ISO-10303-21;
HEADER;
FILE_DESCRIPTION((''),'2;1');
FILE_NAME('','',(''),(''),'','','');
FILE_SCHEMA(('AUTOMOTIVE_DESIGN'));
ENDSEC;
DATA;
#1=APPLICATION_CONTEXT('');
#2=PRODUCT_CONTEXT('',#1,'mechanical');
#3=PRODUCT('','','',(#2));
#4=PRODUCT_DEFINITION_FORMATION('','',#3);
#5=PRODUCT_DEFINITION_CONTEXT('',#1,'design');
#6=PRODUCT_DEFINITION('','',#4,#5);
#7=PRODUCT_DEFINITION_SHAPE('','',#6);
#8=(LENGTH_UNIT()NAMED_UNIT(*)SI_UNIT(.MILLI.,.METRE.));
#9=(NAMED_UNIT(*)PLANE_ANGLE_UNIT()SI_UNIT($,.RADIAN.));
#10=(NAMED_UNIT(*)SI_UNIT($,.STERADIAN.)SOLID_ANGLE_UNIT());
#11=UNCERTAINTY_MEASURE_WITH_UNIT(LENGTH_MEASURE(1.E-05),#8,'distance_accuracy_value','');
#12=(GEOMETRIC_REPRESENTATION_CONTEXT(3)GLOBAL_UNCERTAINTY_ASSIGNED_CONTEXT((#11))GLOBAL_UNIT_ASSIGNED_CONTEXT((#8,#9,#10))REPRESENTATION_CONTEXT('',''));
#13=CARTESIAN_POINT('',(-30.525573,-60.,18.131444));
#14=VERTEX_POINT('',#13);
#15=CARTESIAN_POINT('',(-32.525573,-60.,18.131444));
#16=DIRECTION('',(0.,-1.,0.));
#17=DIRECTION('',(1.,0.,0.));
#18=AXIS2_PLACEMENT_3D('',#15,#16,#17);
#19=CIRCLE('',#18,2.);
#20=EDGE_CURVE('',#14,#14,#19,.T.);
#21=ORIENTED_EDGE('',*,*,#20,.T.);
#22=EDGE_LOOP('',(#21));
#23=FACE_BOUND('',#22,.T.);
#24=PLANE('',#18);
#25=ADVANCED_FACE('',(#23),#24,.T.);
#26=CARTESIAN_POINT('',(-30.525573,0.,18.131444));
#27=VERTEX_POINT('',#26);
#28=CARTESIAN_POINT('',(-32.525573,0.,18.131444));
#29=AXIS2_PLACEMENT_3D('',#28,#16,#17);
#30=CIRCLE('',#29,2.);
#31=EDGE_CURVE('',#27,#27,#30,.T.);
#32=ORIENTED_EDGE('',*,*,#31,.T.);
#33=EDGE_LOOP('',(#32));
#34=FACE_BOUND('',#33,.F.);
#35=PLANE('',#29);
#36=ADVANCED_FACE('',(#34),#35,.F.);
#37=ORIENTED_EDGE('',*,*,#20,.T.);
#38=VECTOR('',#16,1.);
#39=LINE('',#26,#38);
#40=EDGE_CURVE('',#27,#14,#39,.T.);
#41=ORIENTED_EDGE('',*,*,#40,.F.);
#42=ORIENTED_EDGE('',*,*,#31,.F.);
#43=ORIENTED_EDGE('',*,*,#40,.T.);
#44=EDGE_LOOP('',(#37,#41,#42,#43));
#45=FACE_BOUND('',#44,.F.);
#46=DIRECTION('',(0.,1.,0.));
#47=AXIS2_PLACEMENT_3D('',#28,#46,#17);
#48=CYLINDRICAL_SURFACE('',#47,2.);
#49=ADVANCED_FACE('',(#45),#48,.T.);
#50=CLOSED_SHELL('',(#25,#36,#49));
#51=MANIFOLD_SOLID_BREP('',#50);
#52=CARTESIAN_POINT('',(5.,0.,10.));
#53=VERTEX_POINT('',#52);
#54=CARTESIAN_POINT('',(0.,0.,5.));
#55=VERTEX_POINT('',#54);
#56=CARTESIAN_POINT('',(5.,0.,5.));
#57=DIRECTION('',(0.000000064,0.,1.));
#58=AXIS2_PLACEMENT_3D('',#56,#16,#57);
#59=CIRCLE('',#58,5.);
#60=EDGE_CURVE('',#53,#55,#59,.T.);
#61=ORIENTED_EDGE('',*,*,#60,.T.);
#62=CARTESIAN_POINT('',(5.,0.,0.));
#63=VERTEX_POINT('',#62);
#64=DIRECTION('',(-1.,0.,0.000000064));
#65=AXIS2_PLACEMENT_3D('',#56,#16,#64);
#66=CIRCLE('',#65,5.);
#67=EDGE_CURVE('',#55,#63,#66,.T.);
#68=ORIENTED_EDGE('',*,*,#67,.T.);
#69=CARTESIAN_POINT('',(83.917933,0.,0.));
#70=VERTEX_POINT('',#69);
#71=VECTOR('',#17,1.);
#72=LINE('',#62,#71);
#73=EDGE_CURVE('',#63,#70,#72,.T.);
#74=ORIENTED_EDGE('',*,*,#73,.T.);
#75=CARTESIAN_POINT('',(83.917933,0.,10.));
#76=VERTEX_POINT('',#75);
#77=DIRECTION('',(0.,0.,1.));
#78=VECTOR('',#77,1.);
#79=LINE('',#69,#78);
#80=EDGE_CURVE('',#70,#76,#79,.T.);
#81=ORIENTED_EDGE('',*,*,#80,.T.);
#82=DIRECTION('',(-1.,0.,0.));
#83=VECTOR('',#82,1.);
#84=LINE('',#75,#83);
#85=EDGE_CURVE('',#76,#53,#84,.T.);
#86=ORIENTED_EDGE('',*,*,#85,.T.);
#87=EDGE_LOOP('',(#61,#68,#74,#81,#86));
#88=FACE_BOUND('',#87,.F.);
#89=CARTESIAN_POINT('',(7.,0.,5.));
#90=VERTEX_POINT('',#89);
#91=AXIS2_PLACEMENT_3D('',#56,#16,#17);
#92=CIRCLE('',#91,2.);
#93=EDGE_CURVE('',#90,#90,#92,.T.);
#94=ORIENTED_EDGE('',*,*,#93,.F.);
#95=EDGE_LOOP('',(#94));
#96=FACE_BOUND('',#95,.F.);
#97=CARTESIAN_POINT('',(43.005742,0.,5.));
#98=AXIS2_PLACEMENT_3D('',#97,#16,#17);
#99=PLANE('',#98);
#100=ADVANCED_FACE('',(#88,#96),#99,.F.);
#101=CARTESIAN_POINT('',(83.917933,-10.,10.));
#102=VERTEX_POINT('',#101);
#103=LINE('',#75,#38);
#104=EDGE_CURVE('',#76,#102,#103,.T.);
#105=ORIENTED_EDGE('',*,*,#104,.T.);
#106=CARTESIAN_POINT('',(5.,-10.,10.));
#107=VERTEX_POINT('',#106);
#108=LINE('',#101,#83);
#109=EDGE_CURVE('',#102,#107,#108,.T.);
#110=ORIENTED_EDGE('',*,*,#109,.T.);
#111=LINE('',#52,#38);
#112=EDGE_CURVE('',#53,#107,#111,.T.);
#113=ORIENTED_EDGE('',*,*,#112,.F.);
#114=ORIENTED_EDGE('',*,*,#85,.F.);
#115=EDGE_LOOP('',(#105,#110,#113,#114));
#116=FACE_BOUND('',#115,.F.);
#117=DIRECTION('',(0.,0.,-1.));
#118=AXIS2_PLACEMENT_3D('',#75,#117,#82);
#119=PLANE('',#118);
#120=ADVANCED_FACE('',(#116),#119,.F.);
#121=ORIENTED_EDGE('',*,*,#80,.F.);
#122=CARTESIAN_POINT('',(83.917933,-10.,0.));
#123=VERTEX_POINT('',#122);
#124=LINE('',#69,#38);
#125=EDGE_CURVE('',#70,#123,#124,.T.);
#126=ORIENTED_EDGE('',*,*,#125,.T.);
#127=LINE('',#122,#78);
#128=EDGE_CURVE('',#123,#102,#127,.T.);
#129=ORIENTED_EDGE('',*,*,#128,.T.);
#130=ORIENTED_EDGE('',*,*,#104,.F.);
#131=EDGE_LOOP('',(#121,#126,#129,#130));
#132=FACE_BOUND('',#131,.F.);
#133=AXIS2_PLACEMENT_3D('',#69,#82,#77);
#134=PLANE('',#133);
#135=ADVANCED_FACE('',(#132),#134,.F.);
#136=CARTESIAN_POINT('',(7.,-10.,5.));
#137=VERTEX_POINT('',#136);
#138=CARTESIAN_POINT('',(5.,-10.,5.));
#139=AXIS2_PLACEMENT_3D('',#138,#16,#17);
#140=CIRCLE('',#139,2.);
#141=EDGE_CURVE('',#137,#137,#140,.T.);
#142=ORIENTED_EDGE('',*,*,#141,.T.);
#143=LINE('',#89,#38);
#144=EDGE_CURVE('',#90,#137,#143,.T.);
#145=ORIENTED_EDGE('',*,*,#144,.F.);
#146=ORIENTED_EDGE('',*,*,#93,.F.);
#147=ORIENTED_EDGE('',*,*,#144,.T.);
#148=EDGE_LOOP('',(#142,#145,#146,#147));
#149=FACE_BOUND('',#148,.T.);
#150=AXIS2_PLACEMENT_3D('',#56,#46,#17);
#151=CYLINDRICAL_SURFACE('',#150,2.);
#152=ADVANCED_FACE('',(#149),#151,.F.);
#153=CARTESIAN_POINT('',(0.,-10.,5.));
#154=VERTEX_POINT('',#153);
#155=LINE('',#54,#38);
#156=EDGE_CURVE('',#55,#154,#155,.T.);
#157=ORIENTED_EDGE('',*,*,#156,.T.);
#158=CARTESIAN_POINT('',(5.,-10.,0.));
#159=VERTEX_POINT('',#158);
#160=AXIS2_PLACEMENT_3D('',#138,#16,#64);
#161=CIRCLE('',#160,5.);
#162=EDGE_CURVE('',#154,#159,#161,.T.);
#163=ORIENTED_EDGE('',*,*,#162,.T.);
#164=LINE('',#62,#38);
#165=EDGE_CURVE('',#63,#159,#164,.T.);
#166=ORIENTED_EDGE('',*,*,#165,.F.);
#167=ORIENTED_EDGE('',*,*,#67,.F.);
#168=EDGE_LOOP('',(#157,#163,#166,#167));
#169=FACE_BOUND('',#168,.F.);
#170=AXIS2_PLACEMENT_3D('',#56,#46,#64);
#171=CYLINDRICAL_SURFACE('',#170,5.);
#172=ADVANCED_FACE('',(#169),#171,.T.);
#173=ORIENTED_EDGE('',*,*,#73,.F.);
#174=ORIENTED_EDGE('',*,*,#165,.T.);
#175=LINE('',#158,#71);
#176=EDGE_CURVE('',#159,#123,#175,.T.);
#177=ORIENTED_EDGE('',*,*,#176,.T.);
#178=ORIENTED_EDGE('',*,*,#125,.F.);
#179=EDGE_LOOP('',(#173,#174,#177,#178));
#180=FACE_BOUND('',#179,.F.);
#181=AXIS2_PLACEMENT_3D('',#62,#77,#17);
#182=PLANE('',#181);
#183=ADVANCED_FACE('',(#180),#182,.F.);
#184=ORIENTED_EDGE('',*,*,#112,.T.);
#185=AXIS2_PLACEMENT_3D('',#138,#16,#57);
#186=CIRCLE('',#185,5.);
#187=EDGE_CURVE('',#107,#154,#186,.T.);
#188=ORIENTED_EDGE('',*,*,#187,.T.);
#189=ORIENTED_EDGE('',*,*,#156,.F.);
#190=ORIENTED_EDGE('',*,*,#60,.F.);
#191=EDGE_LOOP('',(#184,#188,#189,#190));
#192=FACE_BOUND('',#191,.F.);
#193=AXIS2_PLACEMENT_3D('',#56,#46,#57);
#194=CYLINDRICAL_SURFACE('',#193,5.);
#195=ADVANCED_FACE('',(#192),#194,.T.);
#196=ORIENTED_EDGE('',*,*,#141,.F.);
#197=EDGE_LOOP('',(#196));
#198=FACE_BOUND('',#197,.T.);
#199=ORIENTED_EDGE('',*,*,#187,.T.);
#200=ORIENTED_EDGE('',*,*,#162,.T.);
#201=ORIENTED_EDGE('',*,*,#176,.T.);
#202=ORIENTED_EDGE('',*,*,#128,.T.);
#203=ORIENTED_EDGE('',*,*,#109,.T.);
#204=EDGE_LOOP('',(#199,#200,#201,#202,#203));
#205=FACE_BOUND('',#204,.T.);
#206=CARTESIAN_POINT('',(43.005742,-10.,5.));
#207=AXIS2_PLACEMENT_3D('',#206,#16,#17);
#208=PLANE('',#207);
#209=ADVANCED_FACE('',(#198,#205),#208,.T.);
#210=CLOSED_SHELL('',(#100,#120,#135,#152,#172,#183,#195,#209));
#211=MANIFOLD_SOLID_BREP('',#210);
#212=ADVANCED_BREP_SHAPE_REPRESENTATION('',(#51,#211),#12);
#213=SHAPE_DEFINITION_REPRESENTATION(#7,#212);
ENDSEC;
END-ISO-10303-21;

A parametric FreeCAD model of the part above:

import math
import FreeCAD as App
import Part
import Sketcher

doc = App.newDocument("Part")
body = doc.addObject("PartDesign::Body", "Body")

# Sketch on XZ plane
sketch1 = body.newObject("Sketcher::SketchObject", "Sketch")
sketch1.AttachmentSupport = (doc.getObject("XZ_Plane"), [""])
sketch1.MapMode = "FlatFace"
sketch1.addGeometry([
    Part.ArcOfCircle(Part.Circle(App.Vector(5, 5, 0), App.Vector(0, 0, 1), 5), math.radians(180), math.radians(270)),  # 0
    Part.LineSegment(App.Vector(5, 0, 0), App.Vector(83.9, 0, 0)),  # 1
    Part.LineSegment(App.Vector(83.9, 0, 0), App.Vector(83.9, 10, 0)),  # 2
    Part.LineSegment(App.Vector(83.9, 10, 0), App.Vector(5, 10, 0)),  # 3
    Part.ArcOfCircle(Part.Circle(App.Vector(5, 5, 0), App.Vector(0, 0, 1), 5), math.radians(90), math.radians(180)),  # 4
    Part.Circle(App.Vector(5, 5, 0), App.Vector(0, 0, 1), 2),  # 5
], False)
sketch1.addConstraint([
    Sketcher.Constraint("Tangent", 0, 2, 1, 1),
    Sketcher.Constraint("Coincident", 1, 2, 2, 1),
    Sketcher.Constraint("Coincident", 2, 2, 3, 1),
    Sketcher.Constraint("Tangent", 3, 2, 4, 1),
    Sketcher.Constraint("Tangent", 4, 2, 0, 1),
    Sketcher.Constraint("Horizontal", 1),
    Sketcher.Constraint("Vertical", 2),
    Sketcher.Constraint("Horizontal", 3),
    Sketcher.Constraint("Coincident", 5, 3, 0, 3),
    Sketcher.Constraint("Equal", 0, 4),
    Sketcher.Constraint("PointOnObject", 0, 2, -1),
    Sketcher.Constraint("PointOnObject", 4, 2, -2),
    Sketcher.Constraint("Horizontal", 5, 3, 4, 2),
    Sketcher.Constraint("Diameter", 5, 4.0),
    Sketcher.Constraint("Radius", 0, 5.0),
    Sketcher.Constraint("DistanceX", 1, 1, 1, 2, 78.917933),
])
pad1 = body.newObject("PartDesign::Pad", "Pad")
pad1.Profile = sketch1
pad1.Length = 10
body2 = doc.addObject("PartDesign::Body", "Body001")

# Sketch on XZ plane
sketch2 = body2.newObject("Sketcher::SketchObject", "Sketch001")
sketch2.AttachmentSupport = (doc.getObject("XZ_Plane001"), [""])
sketch2.MapMode = "FlatFace"
sketch2.addGeometry(Part.Circle(App.Vector(-32.5, 18.1, 0), App.Vector(0, 0, 1), 2), False)
sketch2.addConstraint([
    Sketcher.Constraint("Diameter", 0, 4.0),
    Sketcher.Constraint("DistanceX", 0, 3, -1, 1, 32.525573),
    Sketcher.Constraint("DistanceY", -1, 1, 0, 3, 18.131444),
])
pad2 = body2.newObject("PartDesign::Pad", "Pad001")
pad2.Profile = sketch2
pad2.Length = 60

doc.recompute()
